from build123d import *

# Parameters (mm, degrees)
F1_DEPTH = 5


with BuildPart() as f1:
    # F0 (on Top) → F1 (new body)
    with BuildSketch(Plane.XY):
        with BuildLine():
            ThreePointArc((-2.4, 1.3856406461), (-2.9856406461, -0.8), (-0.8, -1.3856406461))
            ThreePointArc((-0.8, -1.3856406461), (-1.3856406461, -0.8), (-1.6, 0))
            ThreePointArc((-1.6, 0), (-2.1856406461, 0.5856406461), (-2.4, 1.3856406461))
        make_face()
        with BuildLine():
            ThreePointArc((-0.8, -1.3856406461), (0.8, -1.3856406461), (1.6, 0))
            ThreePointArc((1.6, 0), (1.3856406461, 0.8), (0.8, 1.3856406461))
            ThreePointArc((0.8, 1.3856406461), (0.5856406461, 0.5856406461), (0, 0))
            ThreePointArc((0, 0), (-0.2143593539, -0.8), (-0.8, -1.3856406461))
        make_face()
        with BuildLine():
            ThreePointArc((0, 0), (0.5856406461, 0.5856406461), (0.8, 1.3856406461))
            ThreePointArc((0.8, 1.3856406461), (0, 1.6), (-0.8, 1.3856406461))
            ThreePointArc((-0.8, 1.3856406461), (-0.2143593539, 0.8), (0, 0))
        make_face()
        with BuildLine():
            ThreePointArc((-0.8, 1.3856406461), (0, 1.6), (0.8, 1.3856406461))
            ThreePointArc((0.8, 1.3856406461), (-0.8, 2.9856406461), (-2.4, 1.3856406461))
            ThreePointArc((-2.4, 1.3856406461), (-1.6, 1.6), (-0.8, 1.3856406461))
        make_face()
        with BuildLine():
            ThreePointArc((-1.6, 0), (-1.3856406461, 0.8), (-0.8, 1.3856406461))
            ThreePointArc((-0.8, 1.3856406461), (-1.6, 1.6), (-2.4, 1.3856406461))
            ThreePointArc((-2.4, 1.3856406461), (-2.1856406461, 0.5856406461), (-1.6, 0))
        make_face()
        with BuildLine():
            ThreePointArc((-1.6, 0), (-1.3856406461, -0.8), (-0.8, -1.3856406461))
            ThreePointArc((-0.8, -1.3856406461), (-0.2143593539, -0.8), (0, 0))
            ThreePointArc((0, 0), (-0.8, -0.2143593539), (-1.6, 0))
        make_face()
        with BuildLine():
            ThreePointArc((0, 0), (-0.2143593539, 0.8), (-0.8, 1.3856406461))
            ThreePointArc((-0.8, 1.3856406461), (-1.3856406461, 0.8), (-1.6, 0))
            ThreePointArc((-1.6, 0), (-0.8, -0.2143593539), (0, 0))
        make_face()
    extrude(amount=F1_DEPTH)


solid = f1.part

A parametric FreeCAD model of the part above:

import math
import FreeCAD as App
import Part
import Sketcher
Q = App.Units.Quantity

doc = App.newDocument("Part")
body = doc.addObject("PartDesign::Body", "Body")

sketch1 = doc.addObject("Sketcher::SketchObject", "Sketch")
body.addObject(sketch1)
sketch1.AttachmentSupport = (doc.XY_Plane, [""])
sketch1.MapMode = "FlatFace"
sketch1.addGeometry([
    Part.ArcOfCircle(Part.Circle(App.Vector(-1.6, 0, 0), App.Vector(0, 0, 1), 1.6), math.radians(120), math.radians(300)),
    Part.ArcOfCircle(Part.Circle(App.Vector(0, 0, 0), App.Vector(0, 0, 1), 1.6), math.radians(-120), math.radians(0)),
    Part.ArcOfCircle(Part.Circle(App.Vector(0, 0, 0), App.Vector(0, 0, 1), 1.6), math.radians(0), math.radians(60)),
    Part.ArcOfCircle(Part.Circle(App.Vector(-0.8, 1.4, 0), App.Vector(0, 0, 1), 1.6), math.radians(0), math.radians(180)),
], False)
sketch1.addConstraint([
    Sketcher.Constraint("Coincident", 0, 2, 1, 1),
    Sketcher.Constraint("Tangent", 1, 2, 2, 1),
    Sketcher.Constraint("Coincident", 2, 2, 3, 1),
    Sketcher.Constraint("Coincident", 3, 2, 0, 1),
    Sketcher.Constraint("Coincident", 1, 3, -1, 1),
    Sketcher.Constraint("Equal", 0, 1),
    Sketcher.Constraint("Equal", 1, 2),
    Sketcher.Constraint("Equal", 2, 3),
    Sketcher.Constraint("PointOnObject", 0, 3, -1),
    Sketcher.Constraint("PointOnObject", 1, 2, -1),
    Sketcher.Constraint("Horizontal", 3, 3, 2, 2),
    Sketcher.Constraint("Horizontal", 2, 2, 3, 2),
    Sketcher.Constraint("Radius", 0, Q("1.6 mm")),
    Sketcher.Constraint("DistanceX", 0, 3, -1, 1, Q("1.6 mm")),
])
pad1 = doc.addObject("PartDesign::Pad", "Pad")
body.addObject(pad1)
pad1.Profile = sketch1
pad1.Length = 5

doc.recompute()
